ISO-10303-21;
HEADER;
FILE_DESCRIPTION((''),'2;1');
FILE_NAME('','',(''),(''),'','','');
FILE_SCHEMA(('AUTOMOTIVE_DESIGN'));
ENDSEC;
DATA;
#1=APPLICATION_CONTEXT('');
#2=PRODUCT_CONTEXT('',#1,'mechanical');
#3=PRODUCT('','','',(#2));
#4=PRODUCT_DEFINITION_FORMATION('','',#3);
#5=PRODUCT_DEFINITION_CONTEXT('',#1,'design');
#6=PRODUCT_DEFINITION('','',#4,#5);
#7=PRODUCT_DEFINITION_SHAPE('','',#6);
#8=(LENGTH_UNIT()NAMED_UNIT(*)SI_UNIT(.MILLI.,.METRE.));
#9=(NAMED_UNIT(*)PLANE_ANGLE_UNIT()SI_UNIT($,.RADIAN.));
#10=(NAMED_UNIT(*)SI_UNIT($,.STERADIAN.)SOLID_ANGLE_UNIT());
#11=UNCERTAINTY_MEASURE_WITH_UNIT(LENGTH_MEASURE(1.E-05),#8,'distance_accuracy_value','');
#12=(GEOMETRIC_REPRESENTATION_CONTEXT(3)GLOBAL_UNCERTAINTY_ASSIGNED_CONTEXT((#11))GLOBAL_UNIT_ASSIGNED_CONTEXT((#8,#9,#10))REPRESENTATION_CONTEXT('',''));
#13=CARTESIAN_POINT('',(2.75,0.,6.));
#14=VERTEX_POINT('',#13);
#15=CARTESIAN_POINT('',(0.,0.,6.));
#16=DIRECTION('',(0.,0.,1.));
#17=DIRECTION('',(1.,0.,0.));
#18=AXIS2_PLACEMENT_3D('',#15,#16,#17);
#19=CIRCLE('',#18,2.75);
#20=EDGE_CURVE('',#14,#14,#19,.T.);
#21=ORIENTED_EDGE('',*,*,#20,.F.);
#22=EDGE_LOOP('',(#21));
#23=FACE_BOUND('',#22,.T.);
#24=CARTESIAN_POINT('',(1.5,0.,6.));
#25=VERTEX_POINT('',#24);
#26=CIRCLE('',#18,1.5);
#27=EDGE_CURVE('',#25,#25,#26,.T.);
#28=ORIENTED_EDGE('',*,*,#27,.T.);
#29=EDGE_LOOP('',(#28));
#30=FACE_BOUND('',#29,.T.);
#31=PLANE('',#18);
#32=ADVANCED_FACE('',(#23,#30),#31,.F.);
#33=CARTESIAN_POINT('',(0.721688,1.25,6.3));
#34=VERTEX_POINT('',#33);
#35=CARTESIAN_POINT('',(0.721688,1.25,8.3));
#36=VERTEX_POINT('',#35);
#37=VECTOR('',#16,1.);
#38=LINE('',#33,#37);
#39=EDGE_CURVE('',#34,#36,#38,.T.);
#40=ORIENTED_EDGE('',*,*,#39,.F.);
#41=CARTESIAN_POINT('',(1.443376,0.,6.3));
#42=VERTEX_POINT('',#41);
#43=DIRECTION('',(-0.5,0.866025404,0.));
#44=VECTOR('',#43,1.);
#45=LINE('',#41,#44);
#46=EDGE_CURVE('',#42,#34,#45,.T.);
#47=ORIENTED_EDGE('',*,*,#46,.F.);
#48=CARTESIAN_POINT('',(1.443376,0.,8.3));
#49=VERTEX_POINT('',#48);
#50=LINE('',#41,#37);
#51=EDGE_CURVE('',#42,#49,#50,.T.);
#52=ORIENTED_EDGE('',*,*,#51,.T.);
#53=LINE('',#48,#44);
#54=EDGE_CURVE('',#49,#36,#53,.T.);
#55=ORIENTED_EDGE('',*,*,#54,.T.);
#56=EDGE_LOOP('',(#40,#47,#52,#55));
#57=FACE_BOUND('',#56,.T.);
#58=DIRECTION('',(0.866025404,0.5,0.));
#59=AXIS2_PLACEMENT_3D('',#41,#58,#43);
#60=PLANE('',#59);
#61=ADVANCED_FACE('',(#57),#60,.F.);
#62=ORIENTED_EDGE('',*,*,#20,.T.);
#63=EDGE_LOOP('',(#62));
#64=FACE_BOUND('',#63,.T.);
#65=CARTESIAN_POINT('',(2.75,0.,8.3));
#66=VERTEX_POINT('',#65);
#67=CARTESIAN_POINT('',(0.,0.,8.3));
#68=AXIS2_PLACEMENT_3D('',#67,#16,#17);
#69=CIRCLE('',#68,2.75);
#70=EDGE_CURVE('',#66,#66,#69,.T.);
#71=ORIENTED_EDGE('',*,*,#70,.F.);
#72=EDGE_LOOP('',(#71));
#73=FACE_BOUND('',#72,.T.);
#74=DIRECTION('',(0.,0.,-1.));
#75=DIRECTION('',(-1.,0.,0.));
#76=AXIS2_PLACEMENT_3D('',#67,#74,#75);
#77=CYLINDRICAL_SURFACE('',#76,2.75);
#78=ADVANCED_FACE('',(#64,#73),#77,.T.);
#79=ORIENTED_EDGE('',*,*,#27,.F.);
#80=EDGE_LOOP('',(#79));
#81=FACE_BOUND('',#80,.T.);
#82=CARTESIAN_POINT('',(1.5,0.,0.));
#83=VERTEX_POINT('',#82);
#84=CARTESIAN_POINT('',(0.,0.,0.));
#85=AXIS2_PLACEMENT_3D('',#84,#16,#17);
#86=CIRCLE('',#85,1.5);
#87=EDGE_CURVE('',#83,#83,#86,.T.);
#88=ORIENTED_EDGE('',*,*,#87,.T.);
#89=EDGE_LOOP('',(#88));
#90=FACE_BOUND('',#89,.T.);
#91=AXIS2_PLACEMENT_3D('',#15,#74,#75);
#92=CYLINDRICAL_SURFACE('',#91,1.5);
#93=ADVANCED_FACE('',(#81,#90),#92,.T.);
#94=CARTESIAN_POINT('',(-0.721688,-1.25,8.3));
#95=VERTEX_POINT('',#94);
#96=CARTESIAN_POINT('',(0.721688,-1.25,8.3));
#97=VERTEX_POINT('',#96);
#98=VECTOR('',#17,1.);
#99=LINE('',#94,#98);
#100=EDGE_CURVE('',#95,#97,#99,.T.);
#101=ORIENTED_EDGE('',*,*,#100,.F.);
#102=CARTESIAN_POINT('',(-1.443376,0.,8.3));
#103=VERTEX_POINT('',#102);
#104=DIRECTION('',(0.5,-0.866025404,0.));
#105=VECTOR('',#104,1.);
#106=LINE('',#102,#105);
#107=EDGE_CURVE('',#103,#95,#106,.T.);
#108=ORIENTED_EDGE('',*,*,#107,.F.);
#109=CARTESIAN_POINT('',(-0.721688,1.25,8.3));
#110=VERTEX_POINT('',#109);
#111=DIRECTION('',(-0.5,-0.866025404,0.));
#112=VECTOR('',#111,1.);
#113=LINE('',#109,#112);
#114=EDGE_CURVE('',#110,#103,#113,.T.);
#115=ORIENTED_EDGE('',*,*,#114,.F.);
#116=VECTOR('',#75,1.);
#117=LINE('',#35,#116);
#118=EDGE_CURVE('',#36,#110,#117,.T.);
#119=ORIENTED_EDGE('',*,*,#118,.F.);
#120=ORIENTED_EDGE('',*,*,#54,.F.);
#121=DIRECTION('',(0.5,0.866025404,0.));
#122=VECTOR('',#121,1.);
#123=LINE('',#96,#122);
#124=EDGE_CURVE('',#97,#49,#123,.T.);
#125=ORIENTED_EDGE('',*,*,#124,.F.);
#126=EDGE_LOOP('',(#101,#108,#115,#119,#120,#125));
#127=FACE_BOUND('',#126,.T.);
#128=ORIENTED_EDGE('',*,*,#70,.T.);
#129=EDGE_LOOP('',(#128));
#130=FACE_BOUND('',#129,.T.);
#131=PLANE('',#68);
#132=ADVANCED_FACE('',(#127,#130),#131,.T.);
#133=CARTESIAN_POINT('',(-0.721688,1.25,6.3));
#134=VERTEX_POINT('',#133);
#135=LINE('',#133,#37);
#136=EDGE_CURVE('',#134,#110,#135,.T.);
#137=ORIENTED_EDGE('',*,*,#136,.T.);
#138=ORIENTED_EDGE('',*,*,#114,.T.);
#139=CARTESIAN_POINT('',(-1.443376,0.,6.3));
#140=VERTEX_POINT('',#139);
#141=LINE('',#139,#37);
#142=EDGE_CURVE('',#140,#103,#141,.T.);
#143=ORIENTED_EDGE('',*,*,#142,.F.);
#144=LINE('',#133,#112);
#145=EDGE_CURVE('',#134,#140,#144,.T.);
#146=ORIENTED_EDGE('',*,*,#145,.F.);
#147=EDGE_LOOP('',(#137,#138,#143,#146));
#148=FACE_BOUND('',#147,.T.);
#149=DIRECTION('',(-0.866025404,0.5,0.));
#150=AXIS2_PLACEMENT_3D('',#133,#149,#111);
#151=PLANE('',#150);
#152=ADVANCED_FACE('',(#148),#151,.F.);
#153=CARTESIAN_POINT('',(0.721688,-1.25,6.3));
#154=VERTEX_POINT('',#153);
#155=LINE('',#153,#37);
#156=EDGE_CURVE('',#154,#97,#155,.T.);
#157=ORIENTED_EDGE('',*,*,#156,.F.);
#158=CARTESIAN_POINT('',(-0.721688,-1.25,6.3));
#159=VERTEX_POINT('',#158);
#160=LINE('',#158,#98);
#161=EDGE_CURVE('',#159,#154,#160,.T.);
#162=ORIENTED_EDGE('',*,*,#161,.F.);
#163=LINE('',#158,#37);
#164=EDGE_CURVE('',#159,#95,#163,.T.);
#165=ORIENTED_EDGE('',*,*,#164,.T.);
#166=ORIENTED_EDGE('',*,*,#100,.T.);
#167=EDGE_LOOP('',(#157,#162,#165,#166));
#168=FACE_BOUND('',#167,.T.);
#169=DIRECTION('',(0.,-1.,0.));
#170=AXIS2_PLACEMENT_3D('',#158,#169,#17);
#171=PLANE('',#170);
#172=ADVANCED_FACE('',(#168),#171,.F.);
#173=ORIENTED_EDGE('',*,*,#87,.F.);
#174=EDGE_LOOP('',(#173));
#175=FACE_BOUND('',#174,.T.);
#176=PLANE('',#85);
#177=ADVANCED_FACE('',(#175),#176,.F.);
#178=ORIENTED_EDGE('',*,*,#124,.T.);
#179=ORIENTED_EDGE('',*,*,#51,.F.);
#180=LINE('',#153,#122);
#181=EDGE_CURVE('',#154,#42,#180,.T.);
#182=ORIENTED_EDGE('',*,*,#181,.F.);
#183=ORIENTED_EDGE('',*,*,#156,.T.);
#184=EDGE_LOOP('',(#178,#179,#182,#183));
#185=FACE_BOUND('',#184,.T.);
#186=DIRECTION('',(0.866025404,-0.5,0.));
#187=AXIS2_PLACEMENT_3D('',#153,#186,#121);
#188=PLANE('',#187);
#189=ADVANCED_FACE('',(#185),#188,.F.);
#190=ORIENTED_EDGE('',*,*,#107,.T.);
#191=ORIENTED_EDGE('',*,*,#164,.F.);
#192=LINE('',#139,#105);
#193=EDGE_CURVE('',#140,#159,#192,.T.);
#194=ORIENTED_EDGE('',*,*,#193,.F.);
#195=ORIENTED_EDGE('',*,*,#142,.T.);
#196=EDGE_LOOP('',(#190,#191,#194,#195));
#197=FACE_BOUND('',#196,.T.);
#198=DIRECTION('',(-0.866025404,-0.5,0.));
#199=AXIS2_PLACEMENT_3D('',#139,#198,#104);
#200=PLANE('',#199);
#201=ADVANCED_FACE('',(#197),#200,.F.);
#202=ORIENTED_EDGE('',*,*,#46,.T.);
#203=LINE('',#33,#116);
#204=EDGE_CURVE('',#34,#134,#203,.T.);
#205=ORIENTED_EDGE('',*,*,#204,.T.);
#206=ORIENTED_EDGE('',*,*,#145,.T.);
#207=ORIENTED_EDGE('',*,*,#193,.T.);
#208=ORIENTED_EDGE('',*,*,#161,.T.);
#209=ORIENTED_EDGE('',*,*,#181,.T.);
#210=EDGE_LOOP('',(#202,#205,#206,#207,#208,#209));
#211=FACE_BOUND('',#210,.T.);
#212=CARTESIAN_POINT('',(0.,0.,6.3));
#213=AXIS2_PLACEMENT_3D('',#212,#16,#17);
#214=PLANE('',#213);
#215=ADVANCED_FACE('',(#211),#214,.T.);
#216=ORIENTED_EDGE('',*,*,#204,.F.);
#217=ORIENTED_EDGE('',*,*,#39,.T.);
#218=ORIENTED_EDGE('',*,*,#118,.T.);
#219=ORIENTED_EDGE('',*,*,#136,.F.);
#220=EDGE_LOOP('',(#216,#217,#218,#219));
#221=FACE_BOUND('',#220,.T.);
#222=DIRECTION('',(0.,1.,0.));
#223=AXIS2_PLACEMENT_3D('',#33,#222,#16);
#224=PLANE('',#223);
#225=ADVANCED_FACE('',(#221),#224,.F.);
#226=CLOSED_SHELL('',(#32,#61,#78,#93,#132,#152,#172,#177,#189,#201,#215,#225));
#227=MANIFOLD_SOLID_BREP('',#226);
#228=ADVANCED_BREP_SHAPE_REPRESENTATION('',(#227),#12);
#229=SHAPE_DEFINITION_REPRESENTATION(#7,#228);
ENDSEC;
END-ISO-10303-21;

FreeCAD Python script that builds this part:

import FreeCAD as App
import Part
import Sketcher
from FreeCAD import Vector
Q = App.Units.Quantity

doc = App.newDocument("Part")
body = doc.addObject("PartDesign::Body", "Body")

# Sketch on XY plane
sketch1 = body.newObject("Sketcher::SketchObject", "Sketch")
sketch1.AttachmentSupport = (doc.getObject("XY_Plane"), [""])
sketch1.MapMode = "FlatFace"
sketch1.addGeometry(Part.Circle(Vector(0, 0, 0), Vector(0, 0, 1), 1.5), False)
sketch1.addConstraint([
    Sketcher.Constraint("Coincident", 0, 3, -1, 1),
    Sketcher.Constraint("Diameter", 0, Q("3 mm")),
])
pad1 = body.newObject("PartDesign::Pad", "Pad")
pad1.Profile = sketch1
pad1.Length = 6

# Sketch on XY plane
sketch2 = body.newObject("Sketcher::SketchObject", "Sketch001")
sketch2.AttachmentSupport = (doc.getObject("XY_Plane"), [""])
sketch2.MapMode = "FlatFace"
sketch2.AttachmentOffset = App.Placement(Vector(0, 0, 6), App.Rotation())
sketch2.addGeometry(Part.Circle(Vector(0, 0, 0), Vector(0, 0, 1), 2.8), False)
sketch2.addConstraint([
    Sketcher.Constraint("Coincident", 0, 3, -1, 1),
    Sketcher.Constraint("Diameter", 0, Q("5.5 mm")),
])
pad2 = body.newObject("PartDesign::Pad", "Pad001")
pad2.Profile = sketch2
pad2.Length = 2.3

# Sketch on XY plane
sketch3 = body.newObject("Sketcher::SketchObject", "Sketch002")
sketch3.AttachmentSupport = (doc.getObject("XY_Plane"), [""])
sketch3.MapMode = "FlatFace"
sketch3.AttachmentOffset = App.Placement(Vector(0, 0, 8.3), App.Rotation())
sketch3.addGeometry([
    Part.LineSegment(Vector(1.4, 0, 0), Vector(0.7, 1.2, 0)),  # 0
    Part.LineSegment(Vector(0.7, 1.2, 0), Vector(-0.7, 1.2, 0)),  # 1
    Part.LineSegment(Vector(-0.7, 1.2, 0), Vector(-1.4, 0, 0)),  # 2
    Part.LineSegment(Vector(-1.4, 0, 0), Vector(-0.7, -1.2, 0)),  # 3
    Part.LineSegment(Vector(-0.7, -1.2, 0), Vector(0.7, -1.2, 0)),  # 4
    Part.LineSegment(Vector(0.7, -1.2, 0), Vector(1.4, 0, 0)),  # 5
], False)
sketch3.addConstraint([
    Sketcher.Constraint("Coincident", 0, 2, 1, 1),
    Sketcher.Constraint("Coincident", 1, 2, 2, 1),
    Sketcher.Constraint("Coincident", 2, 2, 3, 1),
    Sketcher.Constraint("Coincident", 3, 2, 4, 1),
    Sketcher.Constraint("Coincident", 4, 2, 5, 1),
    Sketcher.Constraint("Coincident", 5, 2, 0, 1),
    Sketcher.Constraint("Horizontal", 1),
    Sketcher.Constraint("Horizontal", 4),
    Sketcher.Constraint("Symmetric", 0, 2, 3, 2, -1, 1),
    Sketcher.Constraint("Symmetric", 2, 2, 5, 2, -1, 1),
    Sketcher.Constraint("PointOnObject", 2, 2, -1),
    Sketcher.Constraint("Parallel", 2, 5),
    Sketcher.Constraint("Vertical", 1, 2, 3, 2),
    Sketcher.Constraint("Angle", 0, Q("120 deg")),
    Sketcher.Constraint("DistanceY", 3, 2, 1, 2, Q("2.5 mm")),
    Sketcher.Constraint("DistanceX", 1, 2, 1, 1, Q("1.443376 mm")),
])
pocket1 = body.newObject("PartDesign::Pocket", "Pocket")
pocket1.Profile = sketch3
pocket1.Length = 2

doc.recompute()
